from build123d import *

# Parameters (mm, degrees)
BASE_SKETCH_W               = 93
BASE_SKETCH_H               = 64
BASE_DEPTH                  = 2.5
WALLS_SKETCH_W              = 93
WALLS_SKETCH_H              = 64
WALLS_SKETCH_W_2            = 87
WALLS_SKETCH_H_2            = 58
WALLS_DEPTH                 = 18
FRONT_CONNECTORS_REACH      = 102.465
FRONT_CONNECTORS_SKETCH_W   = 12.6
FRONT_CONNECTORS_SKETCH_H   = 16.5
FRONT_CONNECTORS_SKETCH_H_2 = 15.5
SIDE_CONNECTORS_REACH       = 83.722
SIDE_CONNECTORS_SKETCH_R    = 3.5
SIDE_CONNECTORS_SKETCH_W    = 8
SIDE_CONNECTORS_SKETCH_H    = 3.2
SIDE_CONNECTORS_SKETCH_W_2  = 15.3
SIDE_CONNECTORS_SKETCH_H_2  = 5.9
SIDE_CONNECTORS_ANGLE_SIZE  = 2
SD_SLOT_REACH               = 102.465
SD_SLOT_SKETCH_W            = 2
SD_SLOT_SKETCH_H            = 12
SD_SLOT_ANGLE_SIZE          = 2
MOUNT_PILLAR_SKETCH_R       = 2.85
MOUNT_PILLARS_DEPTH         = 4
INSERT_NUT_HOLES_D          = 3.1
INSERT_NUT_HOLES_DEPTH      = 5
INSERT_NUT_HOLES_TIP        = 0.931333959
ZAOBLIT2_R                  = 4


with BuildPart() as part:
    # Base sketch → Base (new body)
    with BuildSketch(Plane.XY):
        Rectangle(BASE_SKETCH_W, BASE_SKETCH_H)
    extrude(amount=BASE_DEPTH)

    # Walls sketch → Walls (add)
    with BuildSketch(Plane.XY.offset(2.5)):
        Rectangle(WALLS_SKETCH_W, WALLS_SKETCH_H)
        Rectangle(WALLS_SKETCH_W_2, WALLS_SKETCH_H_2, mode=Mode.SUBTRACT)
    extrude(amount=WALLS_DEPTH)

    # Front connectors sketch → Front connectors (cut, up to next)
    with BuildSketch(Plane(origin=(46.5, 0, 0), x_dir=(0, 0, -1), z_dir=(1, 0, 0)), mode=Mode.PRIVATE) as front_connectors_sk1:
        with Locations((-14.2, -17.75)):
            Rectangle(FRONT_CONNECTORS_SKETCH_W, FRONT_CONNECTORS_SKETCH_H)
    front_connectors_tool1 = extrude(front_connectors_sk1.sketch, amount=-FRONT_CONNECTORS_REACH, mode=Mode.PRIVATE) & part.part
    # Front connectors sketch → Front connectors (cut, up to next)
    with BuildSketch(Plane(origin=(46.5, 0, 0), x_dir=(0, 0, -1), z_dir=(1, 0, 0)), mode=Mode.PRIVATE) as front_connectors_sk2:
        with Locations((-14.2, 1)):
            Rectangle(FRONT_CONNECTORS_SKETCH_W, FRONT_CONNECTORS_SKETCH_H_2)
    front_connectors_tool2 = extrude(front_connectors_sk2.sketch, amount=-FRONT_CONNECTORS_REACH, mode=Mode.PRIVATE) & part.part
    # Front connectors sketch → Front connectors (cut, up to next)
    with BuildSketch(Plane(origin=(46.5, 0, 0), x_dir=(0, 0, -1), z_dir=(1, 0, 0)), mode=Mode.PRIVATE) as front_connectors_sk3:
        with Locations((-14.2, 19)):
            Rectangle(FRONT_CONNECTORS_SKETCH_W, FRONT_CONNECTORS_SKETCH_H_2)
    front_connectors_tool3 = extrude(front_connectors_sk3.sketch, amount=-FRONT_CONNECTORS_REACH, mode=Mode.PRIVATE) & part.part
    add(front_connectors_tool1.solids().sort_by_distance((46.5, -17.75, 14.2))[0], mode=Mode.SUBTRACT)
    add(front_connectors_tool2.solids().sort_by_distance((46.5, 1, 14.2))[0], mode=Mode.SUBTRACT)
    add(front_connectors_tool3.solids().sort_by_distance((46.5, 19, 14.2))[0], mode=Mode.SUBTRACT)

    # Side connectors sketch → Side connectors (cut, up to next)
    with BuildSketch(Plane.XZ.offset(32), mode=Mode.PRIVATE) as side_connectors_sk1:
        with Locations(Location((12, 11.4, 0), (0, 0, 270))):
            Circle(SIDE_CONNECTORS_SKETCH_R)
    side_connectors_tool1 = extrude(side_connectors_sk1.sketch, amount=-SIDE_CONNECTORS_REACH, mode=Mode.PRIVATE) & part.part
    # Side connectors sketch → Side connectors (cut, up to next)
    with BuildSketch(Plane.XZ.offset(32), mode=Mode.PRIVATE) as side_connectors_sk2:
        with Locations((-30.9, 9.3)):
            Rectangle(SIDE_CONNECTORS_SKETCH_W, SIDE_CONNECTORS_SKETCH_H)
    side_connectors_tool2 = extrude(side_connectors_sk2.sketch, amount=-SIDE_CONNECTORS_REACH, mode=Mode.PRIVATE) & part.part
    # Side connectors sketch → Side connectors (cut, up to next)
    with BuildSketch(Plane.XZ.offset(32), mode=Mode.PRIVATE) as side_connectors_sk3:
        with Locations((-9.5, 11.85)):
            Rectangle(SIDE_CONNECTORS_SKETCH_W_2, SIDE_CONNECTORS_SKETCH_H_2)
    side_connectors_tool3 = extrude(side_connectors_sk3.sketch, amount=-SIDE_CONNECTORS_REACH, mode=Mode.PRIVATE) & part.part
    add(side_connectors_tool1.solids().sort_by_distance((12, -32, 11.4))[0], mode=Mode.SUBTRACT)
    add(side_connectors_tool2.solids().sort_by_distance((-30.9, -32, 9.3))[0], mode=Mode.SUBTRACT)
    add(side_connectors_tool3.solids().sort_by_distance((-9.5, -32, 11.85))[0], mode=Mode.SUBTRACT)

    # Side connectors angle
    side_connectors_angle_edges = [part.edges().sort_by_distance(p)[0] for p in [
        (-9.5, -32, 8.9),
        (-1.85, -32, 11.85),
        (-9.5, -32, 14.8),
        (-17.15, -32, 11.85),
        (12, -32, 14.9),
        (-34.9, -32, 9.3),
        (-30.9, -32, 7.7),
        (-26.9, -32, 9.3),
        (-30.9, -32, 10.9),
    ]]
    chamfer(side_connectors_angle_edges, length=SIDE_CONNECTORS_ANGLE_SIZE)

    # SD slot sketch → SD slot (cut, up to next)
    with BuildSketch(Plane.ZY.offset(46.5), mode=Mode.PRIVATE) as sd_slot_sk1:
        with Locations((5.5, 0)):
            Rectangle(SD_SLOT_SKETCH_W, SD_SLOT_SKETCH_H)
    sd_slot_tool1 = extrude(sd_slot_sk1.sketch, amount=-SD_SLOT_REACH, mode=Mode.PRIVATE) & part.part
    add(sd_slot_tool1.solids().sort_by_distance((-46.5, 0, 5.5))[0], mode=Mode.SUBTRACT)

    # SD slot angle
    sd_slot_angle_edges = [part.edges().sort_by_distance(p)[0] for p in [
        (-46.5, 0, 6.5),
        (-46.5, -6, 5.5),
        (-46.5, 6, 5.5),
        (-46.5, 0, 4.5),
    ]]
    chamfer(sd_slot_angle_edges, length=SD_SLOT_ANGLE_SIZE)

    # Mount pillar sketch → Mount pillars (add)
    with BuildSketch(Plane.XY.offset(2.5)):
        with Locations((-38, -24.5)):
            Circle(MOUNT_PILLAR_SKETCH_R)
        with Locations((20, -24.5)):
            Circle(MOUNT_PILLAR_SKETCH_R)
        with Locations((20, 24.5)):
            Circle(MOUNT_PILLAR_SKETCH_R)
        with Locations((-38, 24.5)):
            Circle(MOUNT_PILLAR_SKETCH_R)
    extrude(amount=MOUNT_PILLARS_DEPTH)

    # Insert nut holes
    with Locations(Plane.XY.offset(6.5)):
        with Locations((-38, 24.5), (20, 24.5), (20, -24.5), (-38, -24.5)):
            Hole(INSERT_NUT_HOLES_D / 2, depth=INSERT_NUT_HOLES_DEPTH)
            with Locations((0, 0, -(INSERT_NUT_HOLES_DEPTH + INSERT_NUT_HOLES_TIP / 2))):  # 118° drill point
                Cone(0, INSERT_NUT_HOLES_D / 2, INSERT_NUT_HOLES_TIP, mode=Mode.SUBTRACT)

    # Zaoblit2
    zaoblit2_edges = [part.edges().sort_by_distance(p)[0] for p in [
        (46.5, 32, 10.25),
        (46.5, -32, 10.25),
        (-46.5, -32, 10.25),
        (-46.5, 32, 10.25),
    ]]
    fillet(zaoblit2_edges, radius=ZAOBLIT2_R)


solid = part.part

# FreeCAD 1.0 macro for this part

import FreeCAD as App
import Part
import Sketcher

V = App.Vector
Q = App.Units.Quantity


def edges_at(feature, points):
    """Names of the edges that pass closest to the given points."""
    edges = feature.Shape.Edges
    near = lambda p: min(range(len(edges)), key=lambda i: edges[i].distToShape(Part.Vertex(*p))[0])
    return sorted({f"Edge{near(p) + 1}" for p in points})

doc = App.newDocument("Part")
body = doc.addObject("PartDesign::Body", "Body")

sketch1 = body.newObject("Sketcher::SketchObject", "Sketch")
sketch1.AttachmentSupport = (doc.getObject("XY_Plane"), [""])
sketch1.MapMode = "FlatFace"
sketch1.addGeometry([
    Part.LineSegment(V(-46.5, 32, 0), V(-46.5, -32, 0)),
    Part.LineSegment(V(-46.5, -32, 0), V(46.5, -32, 0)),
    Part.LineSegment(V(46.5, -32, 0), V(46.5, 32, 0)),
    Part.LineSegment(V(46.5, 32, 0), V(-46.5, 32, 0)),
], False)
sketch1.addConstraint([
    Sketcher.Constraint("Coincident", 0, 2, 1, 1),
    Sketcher.Constraint("Coincident", 1, 2, 2, 1),
    Sketcher.Constraint("Coincident", 2, 2, 3, 1),
    Sketcher.Constraint("Coincident", 3, 2, 0, 1),
    Sketcher.Constraint("Vertical", 0),
    Sketcher.Constraint("Horizontal", 1),
    Sketcher.Constraint("Vertical", 2),
    Sketcher.Constraint("Horizontal", 3),
    Sketcher.Constraint("Symmetric", 0, 2, 2, 2, -1, 1),
    Sketcher.Constraint("DistanceX", 1, 1, 1, 2, Q("93 mm")),
    Sketcher.Constraint("DistanceY", 0, 2, 0, 1, Q("64 mm")),
])
pad1 = body.newObject("PartDesign::Pad", "Pad")
pad1.Profile = sketch1
pad1.Length = 2.5

sketch2 = body.newObject("Sketcher::SketchObject", "Sketch001")
sketch2.AttachmentSupport = (doc.getObject("XY_Plane"), [""])
sketch2.MapMode = "FlatFace"
sketch2.AttachmentOffset = App.Placement(V(0, 0, 2.5), App.Rotation())
sketch2.addGeometry([
    Part.LineSegment(V(-46.5, 32, 0), V(-46.5, -32, 0)),
    Part.LineSegment(V(-46.5, -32, 0), V(46.5, -32, 0)),
    Part.LineSegment(V(46.5, -32, 0), V(46.5, 32, 0)),
    Part.LineSegment(V(46.5, 32, 0), V(-46.5, 32, 0)),
    Part.LineSegment(V(43.5, -29, 0), V(-43.5, -29, 0)),
    Part.LineSegment(V(-43.5, -29, 0), V(-43.5, 29, 0)),
    Part.LineSegment(V(-43.5, 29, 0), V(43.5, 29, 0)),
    Part.LineSegment(V(43.5, 29, 0), V(43.5, -29, 0)),
], False)
sketch2.addConstraint([
    Sketcher.Constraint("Coincident", 0, 2, 1, 1),
    Sketcher.Constraint("Coincident", 1, 2, 2, 1),
    Sketcher.Constraint("Coincident", 2, 2, 3, 1),
    Sketcher.Constraint("Coincident", 3, 2, 0, 1),
    Sketcher.Constraint("Coincident", 4, 2, 5, 1),
    Sketcher.Constraint("Coincident", 5, 2, 6, 1),
    Sketcher.Constraint("Coincident", 6, 2, 7, 1),
    Sketcher.Constraint("Coincident", 7, 2, 4, 1),
    Sketcher.Constraint("Vertical", 0),
    Sketcher.Constraint("Horizontal", 1),
    Sketcher.Constraint("Vertical", 2),
    Sketcher.Constraint("Horizontal", 3),
    Sketcher.Constraint("Horizontal", 4),
    Sketcher.Constraint("Vertical", 5),
    Sketcher.Constraint("Horizontal", 6),
    Sketcher.Constraint("Vertical", 7),
    Sketcher.Constraint("Symmetric", 0, 2, 2, 2, -1, 1),
    Sketcher.Constraint("Symmetric", 4, 2, 6, 2, -1, 1),
    Sketcher.Constraint("DistanceX", 1, 1, 1, 2, Q("93 mm")),
    Sketcher.Constraint("DistanceX", 4, 2, 4, 1, Q("87 mm")),
    Sketcher.Constraint("DistanceY", 0, 2, 0, 1, Q("64 mm")),
    Sketcher.Constraint("DistanceY", 5, 1, 5, 2, Q("58 mm")),
])
pad2 = body.newObject("PartDesign::Pad", "Pad001")
pad2.Profile = sketch2
pad2.Length = 18

sketch3 = body.newObject("Sketcher::SketchObject", "Sketch002")
sketch3.AttachmentSupport = (doc.getObject("YZ_Plane"), [""])
sketch3.MapMode = "FlatFace"
sketch3.AttachmentOffset = App.Placement(V(0, 0, 46.5), App.Rotation())
sketch3.addGeometry([
    Part.LineSegment(V(-9.5, 20.5, 0), V(-26, 20.5, 0)),
    Part.LineSegment(V(-26, 20.5, 0), V(-26, 7.9, 0)),
    Part.LineSegment(V(-26, 7.9, 0), V(-9.5, 7.9, 0)),
    Part.LineSegment(V(-9.5, 7.9, 0), V(-9.5, 20.5, 0)),
], False)
sketch3.addConstraint([
    Sketcher.Constraint("Coincident", 0, 2, 1, 1),
    Sketcher.Constraint("Coincident", 1, 2, 2, 1),
    Sketcher.Constraint("Coincident", 2, 2, 3, 1),
    Sketcher.Constraint("Coincident", 3, 2, 0, 1),
    Sketcher.Constraint("Horizontal", 0),
    Sketcher.Constraint("Vertical", 1),
    Sketcher.Constraint("Horizontal", 2),
    Sketcher.Constraint("Vertical", 3),
    Sketcher.Constraint("DistanceX", 0, 2, 0, 1, Q("16.5 mm")),
    Sketcher.Constraint("DistanceY", 1, 2, 1, 1, Q("12.6 mm")),
    Sketcher.Constraint("DistanceX", 0, 2, -1, 1, Q("26 mm")),
    Sketcher.Constraint("DistanceY", -1, 1, 0, 2, Q("20.5 mm")),
])
pocket1 = body.newObject("PartDesign::Pocket", "Pocket")
pocket1.Profile = sketch3
pocket1.Type = "UpToFirst"

sketch4 = body.newObject("Sketcher::SketchObject", "Sketch003")
sketch4.AttachmentSupport = (doc.getObject("YZ_Plane"), [""])
sketch4.MapMode = "FlatFace"
sketch4.AttachmentOffset = App.Placement(V(0, 0, 46.5), App.Rotation())
sketch4.addGeometry([
    Part.LineSegment(V(8.75, 20.5, 0), V(-6.75, 20.5, 0)),
    Part.LineSegment(V(-6.75, 20.5, 0), V(-6.75, 7.9, 0)),
    Part.LineSegment(V(-6.75, 7.9, 0), V(8.75, 7.9, 0)),
    Part.LineSegment(V(8.75, 7.9, 0), V(8.75, 20.5, 0)),
], False)
sketch4.addConstraint([
    Sketcher.Constraint("Coincident", 0, 2, 1, 1),
    Sketcher.Constraint("Coincident", 1, 2, 2, 1),
    Sketcher.Constraint("Coincident", 2, 2, 3, 1),
    Sketcher.Constraint("Coincident", 3, 2, 0, 1),
    Sketcher.Constraint("Horizontal", 0),
    Sketcher.Constraint("Vertical", 1),
    Sketcher.Constraint("Horizontal", 2),
    Sketcher.Constraint("Vertical", 3),
    Sketcher.Constraint("DistanceX", 0, 2, 0, 1, Q("15.5 mm")),
    Sketcher.Constraint("DistanceY", 1, 2, 1, 1, Q("12.6 mm")),
    Sketcher.Constraint("DistanceY", -1, 1, 0, 2, Q("20.5 mm")),
    Sketcher.Constraint("DistanceX", 0, 2, -1, 1, Q("6.75 mm")),
])
pocket2 = body.newObject("PartDesign::Pocket", "Pocket001")
pocket2.Profile = sketch4
pocket2.Type = "UpToFirst"

sketch5 = body.newObject("Sketcher::SketchObject", "Sketch004")
sketch5.AttachmentSupport = (doc.getObject("YZ_Plane"), [""])
sketch5.MapMode = "FlatFace"
sketch5.AttachmentOffset = App.Placement(V(0, 0, 46.5), App.Rotation())
sketch5.addGeometry([
    Part.LineSegment(V(26.75, 20.5, 0), V(11.25, 20.5, 0)),
    Part.LineSegment(V(11.25, 20.5, 0), V(11.25, 7.9, 0)),
    Part.LineSegment(V(11.25, 7.9, 0), V(26.75, 7.9, 0)),
    Part.LineSegment(V(26.75, 7.9, 0), V(26.75, 20.5, 0)),
], False)
sketch5.addConstraint([
    Sketcher.Constraint("Coincident", 0, 2, 1, 1),
    Sketcher.Constraint("Coincident", 1, 2, 2, 1),
    Sketcher.Constraint("Coincident", 2, 2, 3, 1),
    Sketcher.Constraint("Coincident", 3, 2, 0, 1),
    Sketcher.Constraint("Horizontal", 0),
    Sketcher.Constraint("Vertical", 1),
    Sketcher.Constraint("Horizontal", 2),
    Sketcher.Constraint("Vertical", 3),
    Sketcher.Constraint("DistanceX", 0, 2, 0, 1, Q("15.5 mm")),
    Sketcher.Constraint("DistanceY", 1, 2, 1, 1, Q("12.6 mm")),
    Sketcher.Constraint("DistanceY", -1, 1, 0, 2, Q("20.5 mm")),
    Sketcher.Constraint("DistanceX", -1, 1, 0, 2, Q("11.25 mm")),
])
pocket3 = body.newObject("PartDesign::Pocket", "Pocket002")
pocket3.Profile = sketch5
pocket3.Type = "UpToFirst"

sketch6 = body.newObject("Sketcher::SketchObject", "Sketch005")
sketch6.AttachmentSupport = (doc.getObject("XZ_Plane"), [""])
sketch6.MapMode = "FlatFace"
sketch6.AttachmentOffset = App.Placement(V(0, 0, 32), App.Rotation())
sketch6.addGeometry(Part.Circle(V(12, 11.4, 0), V(0, 0, 1), 3.5), False)
sketch6.addConstraint([
    Sketcher.Constraint("Diameter", 0, Q("7 mm")),
    Sketcher.Constraint("DistanceX", -1, 1, 0, 3, Q("12 mm")),
    Sketcher.Constraint("DistanceY", -1, 1, 0, 3, Q("11.4 mm")),
])
pocket4 = body.newObject("PartDesign::Pocket", "Pocket003")
pocket4.Profile = sketch6
pocket4.Type = "UpToFirst"

sketch7 = body.newObject("Sketcher::SketchObject", "Sketch006")
sketch7.AttachmentSupport = (doc.getObject("XZ_Plane"), [""])
sketch7.MapMode = "FlatFace"
sketch7.AttachmentOffset = App.Placement(V(0, 0, 32), App.Rotation())
sketch7.addGeometry([
    Part.LineSegment(V(-34.9, 10.9, 0), V(-34.9, 7.7, 0)),
    Part.LineSegment(V(-34.9, 7.7, 0), V(-26.9, 7.7, 0)),
    Part.LineSegment(V(-26.9, 7.7, 0), V(-26.9, 10.9, 0)),
    Part.LineSegment(V(-26.9, 10.9, 0), V(-34.9, 10.9, 0)),
], False)
sketch7.addConstraint([
    Sketcher.Constraint("Coincident", 0, 2, 1, 1),
    Sketcher.Constraint("Coincident", 1, 2, 2, 1),
    Sketcher.Constraint("Coincident", 2, 2, 3, 1),
    Sketcher.Constraint("Coincident", 3, 2, 0, 1),
    Sketcher.Constraint("Vertical", 0),
    Sketcher.Constraint("Horizontal", 1),
    Sketcher.Constraint("Vertical", 2),
    Sketcher.Constraint("Horizontal", 3),
    Sketcher.Constraint("DistanceX", 1, 1, 1, 2, Q("8 mm")),
    Sketcher.Constraint("DistanceY", 0, 2, 0, 1, Q("3.2 mm")),
    Sketcher.Constraint("DistanceX", 0, 2, -1, 1, Q("34.9 mm")),
    Sketcher.Constraint("DistanceY", -1, 1, 0, 2, Q("7.7 mm")),
])
pocket5 = body.newObject("PartDesign::Pocket", "Pocket004")
pocket5.Profile = sketch7
pocket5.Type = "UpToFirst"

sketch8 = body.newObject("Sketcher::SketchObject", "Sketch007")
sketch8.AttachmentSupport = (doc.getObject("XZ_Plane"), [""])
sketch8.MapMode = "FlatFace"
sketch8.AttachmentOffset = App.Placement(V(0, 0, 32), App.Rotation())
sketch8.addGeometry([
    Part.LineSegment(V(-17.15, 14.8, 0), V(-17.15, 8.9, 0)),
    Part.LineSegment(V(-17.15, 8.9, 0), V(-1.85, 8.9, 0)),
    Part.LineSegment(V(-1.85, 8.9, 0), V(-1.85, 14.8, 0)),
    Part.LineSegment(V(-1.85, 14.8, 0), V(-17.15, 14.8, 0)),
], False)
sketch8.addConstraint([
    Sketcher.Constraint("Coincident", 0, 2, 1, 1),
    Sketcher.Constraint("Coincident", 1, 2, 2, 1),
    Sketcher.Constraint("Coincident", 2, 2, 3, 1),
    Sketcher.Constraint("Coincident", 3, 2, 0, 1),
    Sketcher.Constraint("Vertical", 0),
    Sketcher.Constraint("Horizontal", 1),
    Sketcher.Constraint("Vertical", 2),
    Sketcher.Constraint("Horizontal", 3),
    Sketcher.Constraint("DistanceX", 1, 1, 1, 2, Q("15.3 mm")),
    Sketcher.Constraint("DistanceY", 0, 2, 0, 1, Q("5.9 mm")),
    Sketcher.Constraint("DistanceY", -1, 1, 0, 2, Q("8.9 mm")),
    Sketcher.Constraint("DistanceX", 0, 2, -1, 1, Q("17.15 mm")),
])
pocket6 = body.newObject("PartDesign::Pocket", "Pocket005")
pocket6.Profile = sketch8
pocket6.Type = "UpToFirst"
doc.recompute()

chamfer = body.newObject("PartDesign::Chamfer", "Chamfer")
chamfer.Base = (pocket6, edges_at(pocket6, [
    (-9.5, -32, 8.9),
    (-1.85, -32, 11.85),
    (-9.5, -32, 14.8),
    (-17.15, -32, 11.85),
    (12, -32, 14.9),
    (-34.9, -32, 9.3),
    (-30.9, -32, 7.7),
    (-26.9, -32, 9.3),
    (-30.9, -32, 10.9),
]))
chamfer.Size = 2

sketch9 = body.newObject("Sketcher::SketchObject", "Sketch008")
sketch9.AttachmentSupport = (doc.getObject("YZ_Plane"), [""])
sketch9.MapMode = "FlatFace"
sketch9.AttachmentOffset = App.Placement(V(0, 0, -46.5), App.Rotation())
sketch9.addGeometry([
    Part.LineSegment(V(6, 4.5, 0), V(-6, 4.5, 0)),
    Part.LineSegment(V(-6, 4.5, 0), V(-6, 6.5, 0)),
    Part.LineSegment(V(-6, 6.5, 0), V(6, 6.5, 0)),
    Part.LineSegment(V(6, 6.5, 0), V(6, 4.5, 0)),
], False)
sketch9.addConstraint([
    Sketcher.Constraint("Coincident", 0, 2, 1, 1),
    Sketcher.Constraint("Coincident", 1, 2, 2, 1),
    Sketcher.Constraint("Coincident", 2, 2, 3, 1),
    Sketcher.Constraint("Coincident", 3, 2, 0, 1),
    Sketcher.Constraint("Horizontal", 0),
    Sketcher.Constraint("Vertical", 1),
    Sketcher.Constraint("Horizontal", 2),
    Sketcher.Constraint("Vertical", 3),
    Sketcher.Constraint("DistanceX", 0, 2, 0, 1, Q("12 mm")),
    Sketcher.Constraint("DistanceY", 1, 1, 1, 2, Q("2 mm")),
    Sketcher.Constraint("DistanceX", 0, 2, -1, 1, Q("6 mm")),
    Sketcher.Constraint("DistanceY", -1, 1, 0, 2, Q("4.5 mm")),
])
pocket7 = body.newObject("PartDesign::Pocket", "Pocket006")
pocket7.Profile = sketch9
pocket7.Type = "UpToFirst"
pocket7.Reversed = True
doc.recompute()

chamfer2 = body.newObject("PartDesign::Chamfer", "Chamfer001")
chamfer2.Base = (pocket7, edges_at(pocket7, [
    (-46.5, 0, 6.5),
    (-46.5, -6, 5.5),
    (-46.5, 6, 5.5),
    (-46.5, 0, 4.5),
]))
chamfer2.Size = 2

sketch10 = body.newObject("Sketcher::SketchObject", "Sketch009")
sketch10.AttachmentSupport = (doc.getObject("XY_Plane"), [""])
sketch10.MapMode = "FlatFace"
sketch10.AttachmentOffset = App.Placement(V(0, 0, 2.5), App.Rotation())
sketch10.addGeometry([
    Part.Circle(V(-38, -24.5, 0), V(0, 0, 1), 2.85),
    Part.Circle(V(20, -24.5, 0), V(0, 0, 1), 2.85),
    Part.Circle(V(20, 24.5, 0), V(0, 0, 1), 2.85),
    Part.Circle(V(-38, 24.5, 0), V(0, 0, 1), 2.85),
], False)
sketch10.addConstraint([
    Sketcher.Constraint("Equal", 0, 1),
    Sketcher.Constraint("Equal", 1, 2),
    Sketcher.Constraint("Equal", 2, 3),
    Sketcher.Constraint("Symmetric", 1, 3, 2, 3, -1),
    Sketcher.Constraint("Symmetric", 0, 3, 3, 3, -1),
    Sketcher.Constraint("Horizontal", 0, 3, 1, 3),
    Sketcher.Constraint("Diameter", 0, Q("5.7 mm")),
    Sketcher.Constraint("DistanceX", 0, 3, -1, 1, Q("38 mm")),
    Sketcher.Constraint("DistanceX", -1, 1, 1, 3, Q("20 mm")),
    Sketcher.Constraint("DistanceY", 1, 3, 2, 3, Q("49 mm")),
])
pad3 = body.newObject("PartDesign::Pad", "Pad002")
pad3.Profile = sketch10
pad3.Length = 4

sketch11 = body.newObject("Sketcher::SketchObject", "Sketch010")
sketch11.AttachmentSupport = (doc.getObject("XY_Plane"), [""])
sketch11.MapMode = "FlatFace"
sketch11.AttachmentOffset = App.Placement(V(0, 0, 6.5), App.Rotation())
sketch11.addGeometry([
    Part.Circle(V(-38, 24.5, 0), V(0, 0, 1), 1.55),
    Part.Circle(V(20, 24.5, 0), V(0, 0, 1), 1.55),
    Part.Circle(V(20, -24.5, 0), V(0, 0, 1), 1.55),
    Part.Circle(V(-38, -24.5, 0), V(0, 0, 1), 1.55),
], False)
sketch11.addConstraint([
    Sketcher.Constraint("Equal", 0, 1),
    Sketcher.Constraint("Equal", 1, 2),
    Sketcher.Constraint("Equal", 2, 3),
    Sketcher.Constraint("Symmetric", 1, 3, 2, 3, -1),
    Sketcher.Constraint("Symmetric", 0, 3, 3, 3, -1),
    Sketcher.Constraint("Horizontal", 0, 3, 1, 3),
    Sketcher.Constraint("Diameter", 0, Q("3.1 mm")),
    Sketcher.Constraint("DistanceX", 0, 3, -1, 1, Q("38 mm")),
    Sketcher.Constraint("DistanceX", -1, 1, 1, 3, Q("20 mm")),
    Sketcher.Constraint("DistanceY", 2, 3, 1, 3, Q("49 mm")),
])
doc.recompute()
hole = body.newObject("PartDesign::Hole", "Hole")
hole.Profile = sketch11
hole.ThreadType = "None"
hole.Diameter = 3.1
hole.DepthType = "Dimension"
hole.Depth = 5
hole.DrillPoint = "Angled"
hole.DrillPointAngle = 118
doc.recompute()

fillet = body.newObject("PartDesign::Fillet", "Fillet")
fillet.Base = (hole, edges_at(hole, [
    (46.5, 32, 10.25),
    (46.5, -32, 10.25),
    (-46.5, -32, 10.25),
    (-46.5, 32, 10.25),
]))
fillet.Radius = 4

doc.recompute()
